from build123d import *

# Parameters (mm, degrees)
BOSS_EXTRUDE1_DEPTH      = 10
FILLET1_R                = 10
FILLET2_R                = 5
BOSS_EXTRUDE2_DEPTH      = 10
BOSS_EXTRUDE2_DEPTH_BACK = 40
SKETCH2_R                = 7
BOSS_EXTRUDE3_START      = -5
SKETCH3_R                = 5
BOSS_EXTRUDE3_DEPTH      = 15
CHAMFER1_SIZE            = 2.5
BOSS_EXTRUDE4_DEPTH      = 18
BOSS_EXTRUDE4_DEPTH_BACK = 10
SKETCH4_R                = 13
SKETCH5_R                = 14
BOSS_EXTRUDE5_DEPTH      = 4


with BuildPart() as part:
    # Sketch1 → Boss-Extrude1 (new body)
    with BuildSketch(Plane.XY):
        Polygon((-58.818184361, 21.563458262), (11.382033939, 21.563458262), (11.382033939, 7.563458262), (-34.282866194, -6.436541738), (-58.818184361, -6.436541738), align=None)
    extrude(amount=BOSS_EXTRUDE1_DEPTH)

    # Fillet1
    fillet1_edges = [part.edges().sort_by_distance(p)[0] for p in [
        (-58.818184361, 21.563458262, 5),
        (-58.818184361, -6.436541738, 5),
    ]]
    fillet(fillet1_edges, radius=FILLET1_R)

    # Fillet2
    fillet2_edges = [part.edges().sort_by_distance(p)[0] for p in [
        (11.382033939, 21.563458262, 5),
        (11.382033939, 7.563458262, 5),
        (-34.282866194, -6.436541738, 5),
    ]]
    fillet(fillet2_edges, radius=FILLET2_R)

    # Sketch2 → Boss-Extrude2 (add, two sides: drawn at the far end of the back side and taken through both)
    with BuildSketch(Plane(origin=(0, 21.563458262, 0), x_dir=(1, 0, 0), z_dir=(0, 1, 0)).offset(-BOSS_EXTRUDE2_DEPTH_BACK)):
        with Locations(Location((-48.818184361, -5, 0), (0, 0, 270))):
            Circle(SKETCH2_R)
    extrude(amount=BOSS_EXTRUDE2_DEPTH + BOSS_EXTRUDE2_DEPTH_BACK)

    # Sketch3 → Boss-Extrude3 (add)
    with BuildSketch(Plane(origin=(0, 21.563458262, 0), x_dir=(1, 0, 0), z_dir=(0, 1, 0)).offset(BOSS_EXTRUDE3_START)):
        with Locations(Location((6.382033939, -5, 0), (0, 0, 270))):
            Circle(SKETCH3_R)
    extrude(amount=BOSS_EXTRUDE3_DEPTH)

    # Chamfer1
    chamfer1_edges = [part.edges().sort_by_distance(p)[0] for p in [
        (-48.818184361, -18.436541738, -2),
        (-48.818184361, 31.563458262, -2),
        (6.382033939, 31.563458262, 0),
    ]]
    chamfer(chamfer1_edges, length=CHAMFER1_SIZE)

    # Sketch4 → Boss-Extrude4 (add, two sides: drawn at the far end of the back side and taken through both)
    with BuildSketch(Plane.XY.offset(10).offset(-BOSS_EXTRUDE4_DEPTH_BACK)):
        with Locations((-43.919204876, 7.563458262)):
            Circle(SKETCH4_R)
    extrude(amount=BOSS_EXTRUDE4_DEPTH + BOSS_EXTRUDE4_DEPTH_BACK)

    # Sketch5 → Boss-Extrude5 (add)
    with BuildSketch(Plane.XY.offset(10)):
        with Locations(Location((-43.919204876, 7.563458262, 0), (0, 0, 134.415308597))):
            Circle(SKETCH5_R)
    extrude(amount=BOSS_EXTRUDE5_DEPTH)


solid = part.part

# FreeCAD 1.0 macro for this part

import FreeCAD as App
import Part
import Sketcher


def edges_at(feature, points):
    """Names of the edges that pass closest to the given points."""
    edges = feature.Shape.Edges
    near = lambda p: min(range(len(edges)), key=lambda i: edges[i].distToShape(Part.Vertex(*p))[0])
    return sorted({f"Edge{near(p) + 1}" for p in points})


def add_polygon(sketch, points):
    """Adds a closed chain of lines whose ends are joined by coincident constraints."""
    first, n = sketch.GeometryCount, len(points)
    for a, b in zip(points, points[1:] + points[:1]):
        sketch.addGeometry(Part.LineSegment(App.Vector(*a, 0), App.Vector(*b, 0)), False)
    for i in range(n):
        sketch.addConstraint(Sketcher.Constraint("Coincident", first + i, 2, first + (i + 1) % n, 1))

doc = App.newDocument("Part")
body = doc.addObject("PartDesign::Body", "Body")

sketch1 = body.newObject("Sketcher::SketchObject", "Sketch")
sketch1.AttachmentSupport = (doc.getObject("XY_Plane"), [""])
sketch1.MapMode = "FlatFace"
add_polygon(sketch1, [(11.382034, 21.563458), (-58.818184, 21.563458), (-58.818184, -6.436542), (-34.282866, -6.436542), (11.382034, 7.563458)])
sketch1.addConstraint([
    Sketcher.Constraint("Horizontal", 0),
    Sketcher.Constraint("Vertical", 1),
    Sketcher.Constraint("Horizontal", 2),
    Sketcher.Constraint("Vertical", 4),
    Sketcher.Constraint("DistanceY", 1, 2, 1, 1, 28.0),
    Sketcher.Constraint("DistanceY", 4, 1, 4, 2, 14.0),
    Sketcher.Constraint("DistanceX", 0, 2, 0, 1, 70.200218),
    Sketcher.Constraint("DistanceX", 2, 1, 2, 2, 24.535318),
    Sketcher.Constraint("DistanceY", -1, 1, 0, 2, 21.563458),
    Sketcher.Constraint("DistanceX", 0, 2, -1, 1, 58.818184),
])
pad1 = body.newObject("PartDesign::Pad", "Pad")
pad1.Profile = sketch1
pad1.Length = 10
doc.recompute()

fillet = body.newObject("PartDesign::Fillet", "Fillet")
fillet.Base = (pad1, edges_at(pad1, [(-58.818, 21.563, 5), (-58.818, -6.437, 5)]))
fillet.Radius = 10
doc.recompute()

fillet2 = body.newObject("PartDesign::Fillet", "Fillet001")
fillet2.Base = (fillet, edges_at(fillet, [(11.382, 21.563, 5), (11.382, 7.563, 5), (-34.283, -6.437, 5)]))
fillet2.Radius = 5

sketch2 = body.newObject("Sketcher::SketchObject", "Sketch001")
sketch2.AttachmentSupport = (doc.getObject("XZ_Plane"), [""])
sketch2.MapMode = "FlatFace"
sketch2.AttachmentOffset = App.Placement(App.Vector(0, 0, -21.563458), App.Rotation())
sketch2.addGeometry(Part.Circle(App.Vector(-48.818184, 5, 0), App.Vector(0, 0, 1), 7), False)
sketch2.addConstraint([
    Sketcher.Constraint("Diameter", 0, 14.0),
    Sketcher.Constraint("DistanceY", -1, 1, 0, 3, 5.0),
    Sketcher.Constraint("DistanceX", 0, 3, -1, 1, 48.818184),
])
pad2 = body.newObject("PartDesign::Pad", "Pad001")
pad2.Profile = sketch2
pad2.Type = "TwoLengths"
pad2.Length = 10
pad2.Length2 = 40
pad2.Reversed = True

sketch3 = body.newObject("Sketcher::SketchObject", "Sketch002")
sketch3.AttachmentSupport = (doc.getObject("XZ_Plane"), [""])
sketch3.MapMode = "FlatFace"
sketch3.AttachmentOffset = App.Placement(App.Vector(0, 0, -16.563458), App.Rotation())
sketch3.addGeometry(Part.Circle(App.Vector(6.382034, 5, 0), App.Vector(0, 0, 1), 5), False)
sketch3.addConstraint([
    Sketcher.Constraint("Diameter", 0, 10.0),
    Sketcher.Constraint("DistanceY", -1, 1, 0, 3, 5.0),
    Sketcher.Constraint("DistanceX", -1, 1, 0, 3, 6.382034),
])
pad3 = body.newObject("PartDesign::Pad", "Pad002")
pad3.Profile = sketch3
pad3.Length = 15
pad3.Reversed = True
doc.recompute()

chamfer = body.newObject("PartDesign::Chamfer", "Chamfer")
chamfer.Base = (pad3, edges_at(pad3, [(-48.818, -18.437, -2), (-48.818, 31.563, -2), (6.382, 31.563, 0)]))
chamfer.Size = 2.5

sketch4 = body.newObject("Sketcher::SketchObject", "Sketch003")
sketch4.AttachmentSupport = (doc.getObject("XY_Plane"), [""])
sketch4.MapMode = "FlatFace"
sketch4.AttachmentOffset = App.Placement(App.Vector(0, 0, 10), App.Rotation())
sketch4.addGeometry(Part.Circle(App.Vector(-43.919205, 7.563458, 0), App.Vector(0, 0, 1), 13), False)
sketch4.addConstraint([
    Sketcher.Constraint("Diameter", 0, 26.0),
    Sketcher.Constraint("DistanceY", -1, 1, 0, 3, 7.563458),
    Sketcher.Constraint("DistanceX", 0, 3, -1, 1, 43.919205),
])
pad4 = body.newObject("PartDesign::Pad", "Pad003")
pad4.Profile = sketch4
pad4.Type = "TwoLengths"
pad4.Length = 18
pad4.Length2 = 10

sketch5 = body.newObject("Sketcher::SketchObject", "Sketch004")
sketch5.AttachmentSupport = (doc.getObject("XY_Plane"), [""])
sketch5.MapMode = "FlatFace"
sketch5.AttachmentOffset = App.Placement(App.Vector(0, 0, 10), App.Rotation())
sketch5.addGeometry(Part.Circle(App.Vector(-43.919205, 7.563458, 0), App.Vector(0, 0, 1), 14), False)
sketch5.addConstraint([
    Sketcher.Constraint("Diameter", 0, 28.0),
    Sketcher.Constraint("DistanceY", -1, 1, 0, 3, 7.563458),
    Sketcher.Constraint("DistanceX", 0, 3, -1, 1, 43.919205),
])
pad5 = body.newObject("PartDesign::Pad", "Pad004")
pad5.Profile = sketch5
pad5.Length = 4

doc.recompute()
